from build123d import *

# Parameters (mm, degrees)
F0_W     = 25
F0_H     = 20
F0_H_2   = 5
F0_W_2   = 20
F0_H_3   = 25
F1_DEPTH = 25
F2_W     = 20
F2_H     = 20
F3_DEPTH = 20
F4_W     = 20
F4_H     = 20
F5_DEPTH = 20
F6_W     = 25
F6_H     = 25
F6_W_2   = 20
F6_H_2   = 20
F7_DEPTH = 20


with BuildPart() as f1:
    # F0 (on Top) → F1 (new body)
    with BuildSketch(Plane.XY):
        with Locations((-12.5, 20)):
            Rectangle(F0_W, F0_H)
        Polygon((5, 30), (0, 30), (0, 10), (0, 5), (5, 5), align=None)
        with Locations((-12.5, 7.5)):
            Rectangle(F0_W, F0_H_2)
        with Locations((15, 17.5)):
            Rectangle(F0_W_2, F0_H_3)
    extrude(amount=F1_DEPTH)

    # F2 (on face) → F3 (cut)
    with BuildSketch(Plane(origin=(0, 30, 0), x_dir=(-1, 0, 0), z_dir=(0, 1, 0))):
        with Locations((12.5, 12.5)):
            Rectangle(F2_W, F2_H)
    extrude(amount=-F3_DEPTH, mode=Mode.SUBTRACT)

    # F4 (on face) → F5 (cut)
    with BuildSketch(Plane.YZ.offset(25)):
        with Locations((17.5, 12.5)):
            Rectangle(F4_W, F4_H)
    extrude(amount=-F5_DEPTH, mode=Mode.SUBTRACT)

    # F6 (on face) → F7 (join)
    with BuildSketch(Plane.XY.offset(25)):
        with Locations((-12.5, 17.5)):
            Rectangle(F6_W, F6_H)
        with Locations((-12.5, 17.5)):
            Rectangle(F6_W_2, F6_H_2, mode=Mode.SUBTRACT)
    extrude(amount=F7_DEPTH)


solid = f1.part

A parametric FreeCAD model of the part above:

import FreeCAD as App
import Part
import Sketcher
Q = App.Units.Quantity

doc = App.newDocument("Part")
body = doc.addObject("PartDesign::Body", "Body")

sketch1 = doc.addObject("Sketcher::SketchObject", "Sketch")
body.addObject(sketch1)
sketch1.AttachmentSupport = (doc.XY_Plane, [""])
sketch1.MapMode = "FlatFace"
sketch1.addGeometry(Part.LineSegment(App.Vector(-25, 30, 0), App.Vector(-25, 5, 0)), False)
sketch1.addGeometry(Part.LineSegment(App.Vector(-25, 5, 0), App.Vector(25, 5, 0)), False)
sketch1.addGeometry(Part.LineSegment(App.Vector(25, 5, 0), App.Vector(25, 30, 0)), False)
sketch1.addGeometry(Part.LineSegment(App.Vector(25, 30, 0), App.Vector(-25, 30, 0)), False)
sketch1.addConstraint(Sketcher.Constraint("Coincident", 0, 2, 1, 1))
sketch1.addConstraint(Sketcher.Constraint("Coincident", 1, 2, 2, 1))
sketch1.addConstraint(Sketcher.Constraint("Coincident", 2, 2, 3, 1))
sketch1.addConstraint(Sketcher.Constraint("Coincident", 3, 2, 0, 1))
sketch1.addConstraint(Sketcher.Constraint("Vertical", 0))
sketch1.addConstraint(Sketcher.Constraint("Horizontal", 1))
sketch1.addConstraint(Sketcher.Constraint("Vertical", 2))
sketch1.addConstraint(Sketcher.Constraint("Horizontal", 3))
sketch1.addConstraint(Sketcher.Constraint("DistanceX", 1, 1, 1, 2, Q("50 mm")))
sketch1.addConstraint(Sketcher.Constraint("DistanceY", 0, 2, 0, 1, Q("25 mm")))
sketch1.addConstraint(Sketcher.Constraint("DistanceX", 0, 2, -1, 1, Q("25 mm")))
sketch1.addConstraint(Sketcher.Constraint("DistanceY", -1, 1, 0, 2, Q("5 mm")))
pad1 = doc.addObject("PartDesign::Pad", "Pad")
body.addObject(pad1)
pad1.Profile = sketch1
pad1.Length = 25

sketch2 = doc.addObject("Sketcher::SketchObject", "Sketch001")
body.addObject(sketch2)
sketch2.AttachmentSupport = (doc.XZ_Plane, [""])
sketch2.MapMode = "FlatFace"
sketch2.AttachmentOffset = App.Placement(App.Vector(0, 0, -30), App.Rotation())
sketch2.addGeometry(Part.LineSegment(App.Vector(-2, 22, 0), App.Vector(-2, 2, 0)), False)
sketch2.addGeometry(Part.LineSegment(App.Vector(-2, 2, 0), App.Vector(-22, 2, 0)), False)
sketch2.addGeometry(Part.LineSegment(App.Vector(-22, 2, 0), App.Vector(-22, 22, 0)), False)
sketch2.addGeometry(Part.LineSegment(App.Vector(-22, 22, 0), App.Vector(-2, 22, 0)), False)
sketch2.addConstraint(Sketcher.Constraint("Coincident", 0, 2, 1, 1))
sketch2.addConstraint(Sketcher.Constraint("Coincident", 1, 2, 2, 1))
sketch2.addConstraint(Sketcher.Constraint("Coincident", 2, 2, 3, 1))
sketch2.addConstraint(Sketcher.Constraint("Coincident", 3, 2, 0, 1))
sketch2.addConstraint(Sketcher.Constraint("Vertical", 0))
sketch2.addConstraint(Sketcher.Constraint("Horizontal", 1))
sketch2.addConstraint(Sketcher.Constraint("Vertical", 2))
sketch2.addConstraint(Sketcher.Constraint("Horizontal", 3))
sketch2.addConstraint(Sketcher.Constraint("Equal", 3, 0))
sketch2.addConstraint(Sketcher.Constraint("DistanceX", 1, 2, 1, 1, Q("20 mm")))
sketch2.addConstraint(Sketcher.Constraint("DistanceX", 0, 2, -1, 1, Q("2.5 mm")))
sketch2.addConstraint(Sketcher.Constraint("DistanceY", -1, 1, 0, 2, Q("2.5 mm")))
pocket1 = doc.addObject("PartDesign::Pocket", "Pocket")
body.addObject(pocket1)
pocket1.Profile = sketch2
pocket1.Length = 20
pocket1.Reversed = True

sketch3 = doc.addObject("Sketcher::SketchObject", "Sketch002")
body.addObject(sketch3)
sketch3.AttachmentSupport = (doc.YZ_Plane, [""])
sketch3.MapMode = "FlatFace"
sketch3.AttachmentOffset = App.Placement(App.Vector(0, 0, 25), App.Rotation())
sketch3.addGeometry(Part.LineSegment(App.Vector(8, 22, 0), App.Vector(8, 2, 0)), False)
sketch3.addGeometry(Part.LineSegment(App.Vector(8, 2, 0), App.Vector(28, 2, 0)), False)
sketch3.addGeometry(Part.LineSegment(App.Vector(28, 2, 0), App.Vector(28, 22, 0)), False)
sketch3.addGeometry(Part.LineSegment(App.Vector(28, 22, 0), App.Vector(8, 22, 0)), False)
sketch3.addConstraint(Sketcher.Constraint("Coincident", 0, 2, 1, 1))
sketch3.addConstraint(Sketcher.Constraint("Coincident", 1, 2, 2, 1))
sketch3.addConstraint(Sketcher.Constraint("Coincident", 2, 2, 3, 1))
sketch3.addConstraint(Sketcher.Constraint("Coincident", 3, 2, 0, 1))
sketch3.addConstraint(Sketcher.Constraint("Vertical", 0))
sketch3.addConstraint(Sketcher.Constraint("Horizontal", 1))
sketch3.addConstraint(Sketcher.Constraint("Vertical", 2))
sketch3.addConstraint(Sketcher.Constraint("Horizontal", 3))
sketch3.addConstraint(Sketcher.Constraint("Equal", 3, 0))
sketch3.addConstraint(Sketcher.Constraint("DistanceX", 1, 1, 1, 2, Q("20 mm")))
sketch3.addConstraint(Sketcher.Constraint("DistanceX", -1, 1, 0, 2, Q("7.5 mm")))
sketch3.addConstraint(Sketcher.Constraint("DistanceY", -1, 1, 0, 2, Q("2.5 mm")))
pocket2 = doc.addObject("PartDesign::Pocket", "Pocket001")
body.addObject(pocket2)
pocket2.Profile = sketch3
pocket2.Length = 20

sketch4 = doc.addObject("Sketcher::SketchObject", "Sketch003")
body.addObject(sketch4)
sketch4.AttachmentSupport = (doc.XY_Plane, [""])
sketch4.MapMode = "FlatFace"
sketch4.AttachmentOffset = App.Placement(App.Vector(0, 0, 25), App.Rotation())
sketch4.addGeometry(Part.LineSegment(App.Vector(-25, 30, 0), App.Vector(-25, 5, 0)), False)
sketch4.addGeometry(Part.LineSegment(App.Vector(-25, 5, 0), App.Vector(0, 5, 0)), False)
sketch4.addGeometry(Part.LineSegment(App.Vector(0, 5, 0), App.Vector(0, 30, 0)), False)
sketch4.addGeometry(Part.LineSegment(App.Vector(0, 30, 0), App.Vector(-25, 30, 0)), False)
sketch4.addGeometry(Part.LineSegment(App.Vector(-2, 8, 0), App.Vector(-22, 8, 0)), False)
sketch4.addGeometry(Part.LineSegment(App.Vector(-22, 8, 0), App.Vector(-22, 28, 0)), False)
sketch4.addGeometry(Part.LineSegment(App.Vector(-22, 28, 0), App.Vector(-2, 28, 0)), False)
sketch4.addGeometry(Part.LineSegment(App.Vector(-2, 28, 0), App.Vector(-2, 8, 0)), False)
sketch4.addConstraint(Sketcher.Constraint("Coincident", 0, 2, 1, 1))
sketch4.addConstraint(Sketcher.Constraint("Coincident", 1, 2, 2, 1))
sketch4.addConstraint(Sketcher.Constraint("Coincident", 2, 2, 3, 1))
sketch4.addConstraint(Sketcher.Constraint("Coincident", 3, 2, 0, 1))
sketch4.addConstraint(Sketcher.Constraint("Coincident", 4, 2, 5, 1))
sketch4.addConstraint(Sketcher.Constraint("Coincident", 5, 2, 6, 1))
sketch4.addConstraint(Sketcher.Constraint("Coincident", 6, 2, 7, 1))
sketch4.addConstraint(Sketcher.Constraint("Coincident", 7, 2, 4, 1))
sketch4.addConstraint(Sketcher.Constraint("Vertical", 0))
sketch4.addConstraint(Sketcher.Constraint("Horizontal", 1))
sketch4.addConstraint(Sketcher.Constraint("Vertical", 2))
sketch4.addConstraint(Sketcher.Constraint("Horizontal", 3))
sketch4.addConstraint(Sketcher.Constraint("Horizontal", 4))
sketch4.addConstraint(Sketcher.Constraint("Vertical", 5))
sketch4.addConstraint(Sketcher.Constraint("Horizontal", 6))
sketch4.addConstraint(Sketcher.Constraint("Vertical", 7))
sketch4.addConstraint(Sketcher.Constraint("PointOnObject", 1, 2, -2))
sketch4.addConstraint(Sketcher.Constraint("Equal", 3, 0))
sketch4.addConstraint(Sketcher.Constraint("Equal", 6, 5))
sketch4.addConstraint(Sketcher.Constraint("DistanceX", 1, 1, 1, 2, Q("25 mm")))
sketch4.addConstraint(Sketcher.Constraint("DistanceX", 4, 2, 4, 1, Q("20 mm")))
sketch4.addConstraint(Sketcher.Constraint("DistanceY", -1, 1, 0, 2, Q("5 mm")))
sketch4.addConstraint(Sketcher.Constraint("DistanceX", 4, 2, -1, 1, Q("22.5 mm")))
sketch4.addConstraint(Sketcher.Constraint("DistanceY", -1, 1, 4, 2, Q("7.5 mm")))
pad2 = doc.addObject("PartDesign::Pad", "Pad001")
body.addObject(pad2)
pad2.Profile = sketch4
pad2.Length = 20

doc.recompute()
